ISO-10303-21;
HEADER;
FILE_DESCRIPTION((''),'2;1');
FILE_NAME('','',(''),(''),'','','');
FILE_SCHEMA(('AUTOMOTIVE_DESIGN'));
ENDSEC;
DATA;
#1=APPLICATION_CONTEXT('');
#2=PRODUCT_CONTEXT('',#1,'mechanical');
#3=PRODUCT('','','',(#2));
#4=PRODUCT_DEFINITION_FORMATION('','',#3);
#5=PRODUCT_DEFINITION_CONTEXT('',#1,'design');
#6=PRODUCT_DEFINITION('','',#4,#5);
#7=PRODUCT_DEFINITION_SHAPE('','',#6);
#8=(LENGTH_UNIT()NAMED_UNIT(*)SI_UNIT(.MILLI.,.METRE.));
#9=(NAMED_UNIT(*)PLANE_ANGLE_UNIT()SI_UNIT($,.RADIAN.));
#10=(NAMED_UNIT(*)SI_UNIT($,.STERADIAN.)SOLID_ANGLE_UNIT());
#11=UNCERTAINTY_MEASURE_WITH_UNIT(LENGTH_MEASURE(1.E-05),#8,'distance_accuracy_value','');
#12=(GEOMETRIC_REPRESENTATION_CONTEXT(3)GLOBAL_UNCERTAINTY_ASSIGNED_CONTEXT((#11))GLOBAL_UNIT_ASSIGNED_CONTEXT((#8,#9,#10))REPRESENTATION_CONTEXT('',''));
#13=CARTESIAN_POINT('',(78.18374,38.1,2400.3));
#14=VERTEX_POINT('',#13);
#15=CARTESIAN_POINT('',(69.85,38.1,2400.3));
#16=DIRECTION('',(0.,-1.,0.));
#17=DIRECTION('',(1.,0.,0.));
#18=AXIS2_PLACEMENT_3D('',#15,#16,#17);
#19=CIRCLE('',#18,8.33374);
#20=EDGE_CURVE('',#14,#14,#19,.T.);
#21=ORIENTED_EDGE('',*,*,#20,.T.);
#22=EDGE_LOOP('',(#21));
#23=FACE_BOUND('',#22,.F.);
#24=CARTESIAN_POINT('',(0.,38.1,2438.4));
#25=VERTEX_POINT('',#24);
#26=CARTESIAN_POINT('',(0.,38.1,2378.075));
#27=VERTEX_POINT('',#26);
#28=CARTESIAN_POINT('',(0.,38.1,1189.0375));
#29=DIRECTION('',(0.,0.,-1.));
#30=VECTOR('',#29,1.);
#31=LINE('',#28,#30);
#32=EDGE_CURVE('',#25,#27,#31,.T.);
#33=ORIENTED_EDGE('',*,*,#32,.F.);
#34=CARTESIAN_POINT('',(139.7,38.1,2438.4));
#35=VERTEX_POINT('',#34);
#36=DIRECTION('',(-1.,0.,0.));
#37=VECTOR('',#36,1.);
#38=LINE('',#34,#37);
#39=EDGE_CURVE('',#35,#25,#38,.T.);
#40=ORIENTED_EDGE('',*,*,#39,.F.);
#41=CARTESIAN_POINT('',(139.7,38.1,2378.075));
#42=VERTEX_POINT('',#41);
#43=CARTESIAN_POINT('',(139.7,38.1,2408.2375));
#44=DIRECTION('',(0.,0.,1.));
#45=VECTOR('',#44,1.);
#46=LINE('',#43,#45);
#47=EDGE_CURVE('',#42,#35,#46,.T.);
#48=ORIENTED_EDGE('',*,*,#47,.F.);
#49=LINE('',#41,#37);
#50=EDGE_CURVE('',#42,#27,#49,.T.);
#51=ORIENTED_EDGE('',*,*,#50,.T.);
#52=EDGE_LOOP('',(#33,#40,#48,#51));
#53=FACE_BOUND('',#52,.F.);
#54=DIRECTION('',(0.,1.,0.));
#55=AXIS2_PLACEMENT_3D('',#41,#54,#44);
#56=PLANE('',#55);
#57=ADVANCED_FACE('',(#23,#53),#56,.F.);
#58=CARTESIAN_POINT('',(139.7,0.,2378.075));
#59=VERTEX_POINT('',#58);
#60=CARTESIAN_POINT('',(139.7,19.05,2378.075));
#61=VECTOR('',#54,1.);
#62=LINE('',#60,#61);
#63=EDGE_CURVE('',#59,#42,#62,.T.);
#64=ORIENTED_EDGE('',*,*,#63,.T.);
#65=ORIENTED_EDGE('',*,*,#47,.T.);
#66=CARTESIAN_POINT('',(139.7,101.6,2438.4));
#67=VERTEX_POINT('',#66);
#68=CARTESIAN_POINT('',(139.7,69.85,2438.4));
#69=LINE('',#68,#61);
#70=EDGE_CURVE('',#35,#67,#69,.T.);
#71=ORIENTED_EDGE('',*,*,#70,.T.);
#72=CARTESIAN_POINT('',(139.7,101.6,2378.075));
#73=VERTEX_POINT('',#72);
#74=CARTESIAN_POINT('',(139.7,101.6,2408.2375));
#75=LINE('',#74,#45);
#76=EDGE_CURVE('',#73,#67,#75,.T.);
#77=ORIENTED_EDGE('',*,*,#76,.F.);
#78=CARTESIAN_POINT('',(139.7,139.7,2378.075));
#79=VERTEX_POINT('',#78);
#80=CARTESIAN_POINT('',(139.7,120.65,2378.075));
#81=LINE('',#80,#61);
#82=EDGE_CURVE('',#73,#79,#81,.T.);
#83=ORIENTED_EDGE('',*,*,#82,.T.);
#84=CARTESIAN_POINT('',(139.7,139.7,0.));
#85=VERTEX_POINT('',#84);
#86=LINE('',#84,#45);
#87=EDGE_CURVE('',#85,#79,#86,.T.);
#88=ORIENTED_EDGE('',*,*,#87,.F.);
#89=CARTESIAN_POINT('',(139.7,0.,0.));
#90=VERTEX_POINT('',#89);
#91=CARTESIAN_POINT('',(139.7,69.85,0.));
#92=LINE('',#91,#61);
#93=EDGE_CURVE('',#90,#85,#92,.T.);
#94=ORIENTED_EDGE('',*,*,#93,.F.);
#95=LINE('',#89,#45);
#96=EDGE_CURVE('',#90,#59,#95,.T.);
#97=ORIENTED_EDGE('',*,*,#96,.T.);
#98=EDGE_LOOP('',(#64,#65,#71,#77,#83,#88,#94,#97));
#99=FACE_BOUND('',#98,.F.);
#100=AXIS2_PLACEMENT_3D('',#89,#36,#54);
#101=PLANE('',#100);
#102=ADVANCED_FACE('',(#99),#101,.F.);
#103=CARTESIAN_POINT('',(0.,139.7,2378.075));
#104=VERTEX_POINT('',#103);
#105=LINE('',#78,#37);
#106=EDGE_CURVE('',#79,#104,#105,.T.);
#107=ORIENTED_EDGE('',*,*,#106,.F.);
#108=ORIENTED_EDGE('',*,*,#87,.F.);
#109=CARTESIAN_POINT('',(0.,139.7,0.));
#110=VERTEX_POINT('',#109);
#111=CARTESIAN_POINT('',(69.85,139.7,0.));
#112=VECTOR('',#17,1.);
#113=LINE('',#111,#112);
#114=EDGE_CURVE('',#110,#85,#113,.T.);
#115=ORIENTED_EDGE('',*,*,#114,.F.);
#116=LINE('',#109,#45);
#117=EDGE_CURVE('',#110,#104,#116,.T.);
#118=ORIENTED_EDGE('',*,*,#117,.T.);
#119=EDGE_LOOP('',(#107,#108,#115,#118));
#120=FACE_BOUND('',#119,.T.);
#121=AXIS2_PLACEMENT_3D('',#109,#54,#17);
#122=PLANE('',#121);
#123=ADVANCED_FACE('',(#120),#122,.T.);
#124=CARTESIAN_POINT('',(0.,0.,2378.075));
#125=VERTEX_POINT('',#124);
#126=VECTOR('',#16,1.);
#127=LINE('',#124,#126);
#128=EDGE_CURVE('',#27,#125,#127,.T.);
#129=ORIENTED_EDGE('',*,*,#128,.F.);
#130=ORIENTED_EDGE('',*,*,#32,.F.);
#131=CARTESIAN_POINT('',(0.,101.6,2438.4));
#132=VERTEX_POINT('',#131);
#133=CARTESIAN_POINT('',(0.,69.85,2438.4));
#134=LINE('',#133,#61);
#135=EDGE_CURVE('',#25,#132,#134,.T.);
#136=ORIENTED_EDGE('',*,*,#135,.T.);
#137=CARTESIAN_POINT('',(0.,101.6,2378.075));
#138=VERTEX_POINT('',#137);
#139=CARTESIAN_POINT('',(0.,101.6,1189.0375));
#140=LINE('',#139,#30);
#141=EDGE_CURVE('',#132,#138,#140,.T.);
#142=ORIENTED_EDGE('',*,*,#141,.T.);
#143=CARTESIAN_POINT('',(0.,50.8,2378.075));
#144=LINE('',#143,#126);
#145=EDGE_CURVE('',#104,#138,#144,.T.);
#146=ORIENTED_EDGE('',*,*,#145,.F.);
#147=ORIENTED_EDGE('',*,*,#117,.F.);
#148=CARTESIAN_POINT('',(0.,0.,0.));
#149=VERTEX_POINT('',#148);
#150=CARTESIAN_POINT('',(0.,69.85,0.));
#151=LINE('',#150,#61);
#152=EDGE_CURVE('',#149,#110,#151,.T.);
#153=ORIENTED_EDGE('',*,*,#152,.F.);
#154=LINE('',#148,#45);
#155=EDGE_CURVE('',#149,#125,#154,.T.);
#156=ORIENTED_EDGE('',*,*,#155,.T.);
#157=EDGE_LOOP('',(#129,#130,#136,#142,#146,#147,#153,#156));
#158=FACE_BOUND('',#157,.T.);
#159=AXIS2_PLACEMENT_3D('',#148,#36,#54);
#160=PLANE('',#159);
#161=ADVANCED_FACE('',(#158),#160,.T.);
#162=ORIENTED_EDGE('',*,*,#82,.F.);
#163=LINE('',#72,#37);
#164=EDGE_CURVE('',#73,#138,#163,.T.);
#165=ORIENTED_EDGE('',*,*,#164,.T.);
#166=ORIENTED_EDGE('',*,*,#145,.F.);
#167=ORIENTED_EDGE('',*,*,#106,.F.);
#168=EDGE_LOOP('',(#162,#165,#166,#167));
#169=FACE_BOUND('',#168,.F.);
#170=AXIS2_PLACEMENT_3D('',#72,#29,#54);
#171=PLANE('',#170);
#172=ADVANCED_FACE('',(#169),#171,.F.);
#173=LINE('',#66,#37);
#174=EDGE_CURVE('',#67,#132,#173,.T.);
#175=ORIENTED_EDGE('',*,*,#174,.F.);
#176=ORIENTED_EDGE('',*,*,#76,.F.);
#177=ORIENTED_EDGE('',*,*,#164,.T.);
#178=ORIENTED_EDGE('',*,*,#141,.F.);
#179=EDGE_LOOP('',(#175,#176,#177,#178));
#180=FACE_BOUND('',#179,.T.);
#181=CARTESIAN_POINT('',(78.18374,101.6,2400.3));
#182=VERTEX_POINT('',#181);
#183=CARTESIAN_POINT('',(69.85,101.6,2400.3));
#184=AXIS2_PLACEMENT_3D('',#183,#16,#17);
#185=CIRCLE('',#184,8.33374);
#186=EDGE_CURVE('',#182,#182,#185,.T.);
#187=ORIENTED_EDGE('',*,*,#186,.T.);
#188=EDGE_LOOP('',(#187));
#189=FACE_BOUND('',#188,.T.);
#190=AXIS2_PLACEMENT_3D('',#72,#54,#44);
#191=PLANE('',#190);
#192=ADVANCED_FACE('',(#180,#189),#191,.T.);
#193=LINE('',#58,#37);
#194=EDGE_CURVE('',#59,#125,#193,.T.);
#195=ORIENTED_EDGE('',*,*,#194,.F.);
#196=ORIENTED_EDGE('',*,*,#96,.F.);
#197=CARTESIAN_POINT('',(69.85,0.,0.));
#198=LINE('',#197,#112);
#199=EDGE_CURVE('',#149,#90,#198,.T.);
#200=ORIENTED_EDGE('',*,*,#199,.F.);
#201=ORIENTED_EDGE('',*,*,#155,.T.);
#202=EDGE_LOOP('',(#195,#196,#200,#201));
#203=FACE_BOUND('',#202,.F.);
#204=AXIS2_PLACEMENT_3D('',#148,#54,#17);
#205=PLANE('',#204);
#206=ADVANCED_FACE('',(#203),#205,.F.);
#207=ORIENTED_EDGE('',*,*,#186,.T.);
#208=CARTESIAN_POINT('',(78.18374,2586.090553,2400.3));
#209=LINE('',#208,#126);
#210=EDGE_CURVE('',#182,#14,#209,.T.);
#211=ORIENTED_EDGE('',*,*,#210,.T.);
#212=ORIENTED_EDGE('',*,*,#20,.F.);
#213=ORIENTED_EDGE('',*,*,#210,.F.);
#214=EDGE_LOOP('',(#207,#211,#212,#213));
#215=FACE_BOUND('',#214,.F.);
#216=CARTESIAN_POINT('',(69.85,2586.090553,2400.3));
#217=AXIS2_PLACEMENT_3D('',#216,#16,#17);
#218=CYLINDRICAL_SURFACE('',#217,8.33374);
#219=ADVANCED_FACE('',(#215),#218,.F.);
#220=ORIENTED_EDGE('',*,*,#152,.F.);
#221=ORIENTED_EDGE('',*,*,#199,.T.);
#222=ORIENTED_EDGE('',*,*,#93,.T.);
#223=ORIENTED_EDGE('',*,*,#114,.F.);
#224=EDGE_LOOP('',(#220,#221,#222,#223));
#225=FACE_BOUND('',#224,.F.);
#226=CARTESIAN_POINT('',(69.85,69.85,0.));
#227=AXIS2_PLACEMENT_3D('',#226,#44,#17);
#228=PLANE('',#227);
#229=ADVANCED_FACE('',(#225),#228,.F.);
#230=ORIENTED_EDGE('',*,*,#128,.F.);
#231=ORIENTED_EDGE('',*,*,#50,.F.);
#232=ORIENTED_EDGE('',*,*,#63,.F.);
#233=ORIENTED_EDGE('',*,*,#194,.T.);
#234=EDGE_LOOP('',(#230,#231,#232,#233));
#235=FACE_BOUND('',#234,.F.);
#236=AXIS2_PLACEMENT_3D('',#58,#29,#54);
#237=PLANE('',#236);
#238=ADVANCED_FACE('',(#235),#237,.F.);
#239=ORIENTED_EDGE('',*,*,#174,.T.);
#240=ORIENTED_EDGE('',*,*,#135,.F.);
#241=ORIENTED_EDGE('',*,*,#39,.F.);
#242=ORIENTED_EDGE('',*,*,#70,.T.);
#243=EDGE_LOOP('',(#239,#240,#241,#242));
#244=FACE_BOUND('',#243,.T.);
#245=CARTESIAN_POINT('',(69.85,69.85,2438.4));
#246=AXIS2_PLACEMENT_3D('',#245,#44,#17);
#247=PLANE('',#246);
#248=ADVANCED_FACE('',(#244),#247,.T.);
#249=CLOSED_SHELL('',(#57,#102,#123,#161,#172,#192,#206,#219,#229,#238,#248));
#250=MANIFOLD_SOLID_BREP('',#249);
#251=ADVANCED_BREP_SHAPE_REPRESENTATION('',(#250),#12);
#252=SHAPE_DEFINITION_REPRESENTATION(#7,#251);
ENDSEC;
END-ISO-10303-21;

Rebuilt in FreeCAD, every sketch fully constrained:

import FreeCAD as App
import Part
import Sketcher
from FreeCAD import Vector
Q = App.Units.Quantity

doc = App.newDocument("Part")
body = doc.addObject("PartDesign::Body", "Body")

sketch1 = body.newObject("Sketcher::SketchObject", "Sketch")
sketch1.AttachmentSupport = (doc.getObject("XY_Plane"), [""])
sketch1.MapMode = "FlatFace"
sketch1.addGeometry([
    Part.LineSegment(Vector(0, 140, 0), Vector(0, 0, 0)),
    Part.LineSegment(Vector(0, 0, 0), Vector(140, 0, 0)),
    Part.LineSegment(Vector(140, 0, 0), Vector(140, 140, 0)),
    Part.LineSegment(Vector(140, 140, 0), Vector(0, 140, 0)),
], False)
sketch1.addConstraint([
    Sketcher.Constraint("Coincident", 0, 2, 1, 1),
    Sketcher.Constraint("Coincident", 1, 2, 2, 1),
    Sketcher.Constraint("Coincident", 2, 2, 3, 1),
    Sketcher.Constraint("Coincident", 3, 2, 0, 1),
    Sketcher.Constraint("Vertical", 0),
    Sketcher.Constraint("Horizontal", 1),
    Sketcher.Constraint("Vertical", 2),
    Sketcher.Constraint("Horizontal", 3),
    Sketcher.Constraint("Coincident", 0, 2, -1, 1),
    Sketcher.Constraint("Equal", 3, 0),
    Sketcher.Constraint("DistanceX", 1, 1, 1, 2, Q("5.5 in")),
])
pad1 = body.newObject("PartDesign::Pad", "Pad")
pad1.Profile = sketch1
pad1.Length = Q("96 in")

sketch2 = body.newObject("Sketcher::SketchObject", "Sketch001")
sketch2.AttachmentSupport = (doc.getObject("YZ_Plane"), [""])
sketch2.MapMode = "FlatFace"
sketch2.AttachmentOffset = App.Placement(Vector(0, 0, 5.5 * 25.4), App.Rotation())
sketch2.addGeometry([
    Part.LineSegment(Vector(0, 2438, 0), Vector(0, 2378, 0)),
    Part.LineSegment(Vector(0, 2378, 0), Vector(38, 2378, 0)),
    Part.LineSegment(Vector(38, 2378, 0), Vector(38, 2438, 0)),
    Part.LineSegment(Vector(38, 2438, 0), Vector(0, 2438, 0)),
    Part.LineSegment(Vector(102, 2438, 0), Vector(102, 2378, 0)),
    Part.LineSegment(Vector(102, 2378, 0), Vector(140, 2378, 0)),
    Part.LineSegment(Vector(140, 2378, 0), Vector(140, 2438, 0)),
    Part.LineSegment(Vector(140, 2438, 0), Vector(102, 2438, 0)),
], False)
sketch2.addConstraint([
    Sketcher.Constraint("Coincident", 0, 2, 1, 1),
    Sketcher.Constraint("Coincident", 1, 2, 2, 1),
    Sketcher.Constraint("Coincident", 2, 2, 3, 1),
    Sketcher.Constraint("Coincident", 3, 2, 0, 1),
    Sketcher.Constraint("Coincident", 4, 2, 5, 1),
    Sketcher.Constraint("Coincident", 5, 2, 6, 1),
    Sketcher.Constraint("Coincident", 6, 2, 7, 1),
    Sketcher.Constraint("Coincident", 7, 2, 4, 1),
    Sketcher.Constraint("Vertical", 0),
    Sketcher.Constraint("Horizontal", 1),
    Sketcher.Constraint("Vertical", 2),
    Sketcher.Constraint("Horizontal", 3),
    Sketcher.Constraint("Vertical", 4),
    Sketcher.Constraint("Horizontal", 5),
    Sketcher.Constraint("Vertical", 6),
    Sketcher.Constraint("Horizontal", 7),
    Sketcher.Constraint("PointOnObject", 0, 2, -2),
    Sketcher.Constraint("Horizontal", 1, 2, 4, 2),
    Sketcher.Constraint("Horizontal", 3, 2, 6, 2),
    Sketcher.Constraint("Equal", 3, 5),
    Sketcher.Constraint("DistanceX", 1, 1, 1, 2, Q("1.5 in")),
    Sketcher.Constraint("DistanceY", -1, 1, 2, 2, Q("96 in")),
    Sketcher.Constraint("DistanceX", -1, 1, 4, 2, Q("4 in")),
    Sketcher.Constraint("DistanceY", 0, 2, 0, 1, Q("2.375 in")),
])
pocket1 = body.newObject("PartDesign::Pocket", "Pocket")
pocket1.Profile = sketch2
pocket1.Type = "ThroughAll"

sketch3 = body.newObject("Sketcher::SketchObject", "Sketch002")
sketch3.AttachmentSupport = (doc.getObject("XZ_Plane"), [""])
sketch3.MapMode = "FlatFace"
sketch3.AttachmentOffset = App.Placement(Vector(0, 0, -5.5 * 25.4), App.Rotation())
sketch3.addGeometry(Part.Circle(Vector(70, 2400, 0), Vector(0, 0, 1), 8), False)
sketch3.addConstraint([
    Sketcher.Constraint("Diameter", 0, Q("0.6562 in")),
    Sketcher.Constraint("DistanceY", -1, 1, 0, 3, Q("94.5 in")),
    Sketcher.Constraint("DistanceX", -1, 1, 0, 3, Q("2.75 in")),
])
doc.recompute()
hole = body.newObject("PartDesign::Hole", "Hole")
hole.Profile = sketch3
hole.ThreadType = "None"
hole.Diameter = Q("0.6562 in")
hole.DepthType = "ThroughAll"
hole.Reversed = True

doc.recompute()
